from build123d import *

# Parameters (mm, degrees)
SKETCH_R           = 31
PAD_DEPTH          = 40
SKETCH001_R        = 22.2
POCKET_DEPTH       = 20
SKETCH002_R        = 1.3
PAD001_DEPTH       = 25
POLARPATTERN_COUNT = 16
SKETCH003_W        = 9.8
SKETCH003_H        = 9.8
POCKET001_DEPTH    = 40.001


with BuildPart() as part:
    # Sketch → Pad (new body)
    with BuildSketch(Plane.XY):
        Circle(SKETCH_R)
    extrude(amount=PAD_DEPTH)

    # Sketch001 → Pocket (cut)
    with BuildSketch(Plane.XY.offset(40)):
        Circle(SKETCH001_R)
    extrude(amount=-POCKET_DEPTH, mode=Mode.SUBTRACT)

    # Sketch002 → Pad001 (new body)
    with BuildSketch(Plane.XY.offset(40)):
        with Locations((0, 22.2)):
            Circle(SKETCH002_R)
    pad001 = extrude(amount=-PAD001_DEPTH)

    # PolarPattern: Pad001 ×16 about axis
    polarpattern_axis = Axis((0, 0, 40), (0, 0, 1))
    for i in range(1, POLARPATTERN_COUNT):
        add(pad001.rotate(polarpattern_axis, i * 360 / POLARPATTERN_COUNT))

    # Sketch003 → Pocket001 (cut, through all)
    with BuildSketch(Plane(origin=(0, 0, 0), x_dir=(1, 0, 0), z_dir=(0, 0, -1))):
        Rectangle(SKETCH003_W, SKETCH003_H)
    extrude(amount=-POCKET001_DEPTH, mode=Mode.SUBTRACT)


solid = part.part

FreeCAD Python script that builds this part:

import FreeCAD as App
import Part
import Sketcher

V = App.Vector

doc = App.newDocument("Part")
body = doc.addObject("PartDesign::Body", "Body")

sketch1 = body.newObject("Sketcher::SketchObject", "Sketch")
sketch1.AttachmentSupport = (doc.getObject("XY_Plane"), [""])
sketch1.MapMode = "FlatFace"
sketch1.addGeometry(Part.Circle(V(0, 0, 0), V(0, 0, 1), 31), False)
sketch1.addConstraint([
    Sketcher.Constraint("Coincident", 0, 3, -1, 1),
    Sketcher.Constraint("Diameter", 0, 62.0),
])
pad1 = body.newObject("PartDesign::Pad", "Pad")
pad1.Profile = sketch1
pad1.Length = 40

sketch2 = body.newObject("Sketcher::SketchObject", "Sketch001")
sketch2.AttachmentSupport = (doc.getObject("XY_Plane"), [""])
sketch2.MapMode = "FlatFace"
sketch2.AttachmentOffset = App.Placement(V(0, 0, 40), App.Rotation())
sketch2.addGeometry(Part.Circle(V(0, 0, 0), V(0, 0, 1), 22.2), False)
sketch2.addConstraint([
    Sketcher.Constraint("Coincident", 0, 3, -1, 1),
    Sketcher.Constraint("Diameter", 0, 44.4),
])
pocket1 = body.newObject("PartDesign::Pocket", "Pocket")
pocket1.Profile = sketch2
pocket1.Length = 20

sketch3 = body.newObject("Sketcher::SketchObject", "Sketch002")
sketch3.AttachmentSupport = (doc.getObject("XY_Plane"), [""])
sketch3.MapMode = "FlatFace"
sketch3.AttachmentOffset = App.Placement(V(0, 0, 40), App.Rotation())
sketch3.addGeometry(Part.Circle(V(0, 22.2, 0), V(0, 0, 1), 1.3), False)
sketch3.addConstraint([
    Sketcher.Constraint("PointOnObject", 0, 3, -2),
    Sketcher.Constraint("Diameter", 0, 2.6),
    Sketcher.Constraint("DistanceY", -1, 1, 0, 3, 22.2),
])
pad2 = body.newObject("PartDesign::Pad", "Pad001")
pad2.Profile = sketch3
pad2.Length = 25
pad2.Reversed = True
doc.recompute()

polarpattern = body.newObject("PartDesign::PolarPattern", "PolarPattern")
polarpattern.Originals = [pad2]
polarpattern.Axis = (doc.getObject("Z_Axis"), [""])
polarpattern.Angle = 360
polarpattern.Occurrences = 16
body.Tip = polarpattern

sketch4 = body.newObject("Sketcher::SketchObject", "Sketch003")
sketch4.AttachmentSupport = (doc.getObject("XY_Plane"), [""])
sketch4.MapMode = "FlatFace"
sketch4.addGeometry([
    Part.LineSegment(V(-4.9, -4.9, 0), V(-4.9, 4.9, 0)),
    Part.LineSegment(V(-4.9, 4.9, 0), V(4.9, 4.9, 0)),
    Part.LineSegment(V(4.9, 4.9, 0), V(4.9, -4.9, 0)),
    Part.LineSegment(V(4.9, -4.9, 0), V(-4.9, -4.9, 0)),
], False)
sketch4.addConstraint([
    Sketcher.Constraint("Coincident", 0, 2, 1, 1),
    Sketcher.Constraint("Coincident", 1, 2, 2, 1),
    Sketcher.Constraint("Coincident", 2, 2, 3, 1),
    Sketcher.Constraint("Coincident", 3, 2, 0, 1),
    Sketcher.Constraint("Vertical", 0),
    Sketcher.Constraint("Horizontal", 1),
    Sketcher.Constraint("Vertical", 2),
    Sketcher.Constraint("Horizontal", 3),
    Sketcher.Constraint("Symmetric", 0, 2, 2, 2, -1, 1),
    Sketcher.Constraint("Equal", 3, 0),
    Sketcher.Constraint("DistanceX", 1, 1, 1, 2, 9.8),
])
pocket2 = body.newObject("PartDesign::Pocket", "Pocket001")
pocket2.Profile = sketch4
pocket2.Type = "ThroughAll"
pocket2.Reversed = True

doc.recompute()
